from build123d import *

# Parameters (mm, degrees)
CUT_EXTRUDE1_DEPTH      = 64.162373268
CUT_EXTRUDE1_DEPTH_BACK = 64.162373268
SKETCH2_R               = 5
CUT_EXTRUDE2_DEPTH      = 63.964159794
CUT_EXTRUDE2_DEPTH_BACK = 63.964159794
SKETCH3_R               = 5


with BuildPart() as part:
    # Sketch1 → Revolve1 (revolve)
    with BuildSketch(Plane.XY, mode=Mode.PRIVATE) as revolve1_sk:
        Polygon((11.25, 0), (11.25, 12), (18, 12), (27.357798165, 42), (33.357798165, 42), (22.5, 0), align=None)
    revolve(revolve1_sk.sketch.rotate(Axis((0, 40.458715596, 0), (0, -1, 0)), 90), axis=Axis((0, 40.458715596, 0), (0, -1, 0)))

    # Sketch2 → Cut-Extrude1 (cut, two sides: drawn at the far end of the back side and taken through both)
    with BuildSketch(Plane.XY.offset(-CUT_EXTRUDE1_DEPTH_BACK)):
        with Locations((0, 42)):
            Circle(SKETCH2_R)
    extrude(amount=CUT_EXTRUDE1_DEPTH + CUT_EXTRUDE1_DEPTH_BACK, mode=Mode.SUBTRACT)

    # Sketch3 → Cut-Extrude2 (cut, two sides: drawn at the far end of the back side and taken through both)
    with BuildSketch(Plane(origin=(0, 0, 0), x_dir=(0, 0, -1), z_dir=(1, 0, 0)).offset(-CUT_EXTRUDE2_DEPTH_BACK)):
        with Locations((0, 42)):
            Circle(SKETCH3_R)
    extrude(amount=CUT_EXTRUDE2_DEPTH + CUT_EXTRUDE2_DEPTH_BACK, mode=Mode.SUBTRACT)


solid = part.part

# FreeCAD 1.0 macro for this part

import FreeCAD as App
import Part
import Sketcher
from FreeCAD import Vector
Q = App.Units.Quantity

doc = App.newDocument("Part")
params = doc.addObject("Spreadsheet::Sheet", "Params")
for row, (alias, value) in enumerate([
    ("sketch1_width", "6 mm"),
    ("sketch1_height", "12 mm"),
    ("sketch1_width2", "11.25 mm"),
    ("sketch1_width3", "6.75 mm"),
    ("revolution_angle", "360 deg"),
    ("sketch2_diameter", "10 mm"),
    ("sketch3_diameter", "10 mm"),
], start=1):
    params.set(f"A{row}", alias)
    params.set(f"B{row}", "=" + value)
    params.setAlias(f"B{row}", alias)

body = doc.addObject("PartDesign::Body", "Body")

# Sketch on XY plane
sketch1 = body.newObject("Sketcher::SketchObject", "Sketch")
sketch1.AttachmentSupport = (doc.getObject("XY_Plane"), [""])
sketch1.MapMode = "FlatFace"
sketch1.addGeometry(Part.LineSegment(Vector(11, 12, 0), Vector(11, 0, 0)), False)
sketch1.addGeometry(Part.LineSegment(Vector(11, 0, 0), Vector(22, 0, 0)), False)
sketch1.addGeometry(Part.LineSegment(Vector(22, 0, 0), Vector(33, 42, 0)), False)
sketch1.addGeometry(Part.LineSegment(Vector(33, 42, 0), Vector(27, 42, 0)), False)
sketch1.addGeometry(Part.LineSegment(Vector(27, 42, 0), Vector(18, 12, 0)), False)
sketch1.addGeometry(Part.LineSegment(Vector(18, 12, 0), Vector(11, 12, 0)), False)
sketch1.addConstraint(Sketcher.Constraint("Coincident", 0, 2, 1, 1))
sketch1.addConstraint(Sketcher.Constraint("Coincident", 1, 2, 2, 1))
sketch1.addConstraint(Sketcher.Constraint("Coincident", 2, 2, 3, 1))
sketch1.addConstraint(Sketcher.Constraint("Coincident", 3, 2, 4, 1))
sketch1.addConstraint(Sketcher.Constraint("Coincident", 4, 2, 5, 1))
sketch1.addConstraint(Sketcher.Constraint("Coincident", 5, 2, 0, 1))
sketch1.addConstraint(Sketcher.Constraint("Vertical", 0))
sketch1.addConstraint(Sketcher.Constraint("Horizontal", 1))
sketch1.addConstraint(Sketcher.Constraint("Horizontal", 3))
sketch1.addConstraint(Sketcher.Constraint("Horizontal", 5))
sketch1.addConstraint(Sketcher.Constraint("PointOnObject", 0, 2, -1))
sketch1.addConstraint(Sketcher.Constraint("DistanceX", 3, 2, 3, 1, Q("6 mm")))
sketch1.addConstraint(Sketcher.Constraint("DistanceY", 0, 2, 0, 1, Q("12 mm")))
sketch1.addConstraint(Sketcher.Constraint("DistanceY", -1, 1, 2, 2, Q("42 mm")))
sketch1.addConstraint(Sketcher.Constraint("DistanceX", -1, 1, 4, 2, Q("18 mm")))
sketch1.addConstraint(Sketcher.Constraint("DistanceX", 1, 1, 1, 2, Q("11.25 mm")))
sketch1.addConstraint(Sketcher.Constraint("DistanceX", 5, 2, 5, 1, Q("6.75 mm")))
sketch1.addConstraint(Sketcher.Constraint("Distance", 4, Q("31.425601 mm")))
sketch1.setExpression("Constraints[11]", "Params.sketch1_width")
sketch1.setExpression("Constraints[12]", "Params.sketch1_height")
sketch1.setExpression("Constraints[15]", "Params.sketch1_width2")
sketch1.setExpression("Constraints[16]", "Params.sketch1_width3")
revolution = body.newObject("PartDesign::Revolution", "Revolution")
revolution.Profile = sketch1
revolution.ReferenceAxis = (sketch1, ["V_Axis"])
revolution.setExpression("Angle", "Params.revolution_angle")

# Sketch on XY plane
sketch2 = body.newObject("Sketcher::SketchObject", "Sketch001")
sketch2.AttachmentSupport = (doc.getObject("XY_Plane"), [""])
sketch2.MapMode = "FlatFace"
sketch2.addGeometry(Part.Circle(Vector(0, 42, 0), Vector(0, 0, 1), 5), False)
sketch2.addConstraint(Sketcher.Constraint("PointOnObject", 0, 3, -2))
sketch2.addConstraint(Sketcher.Constraint("Diameter", 0, Q("10 mm")))
sketch2.addConstraint(Sketcher.Constraint("DistanceY", -1, 1, 0, 3, Q("42 mm")))
sketch2.setExpression("Constraints[1]", "Params.sketch2_diameter")
pocket1 = body.newObject("PartDesign::Pocket", "Pocket")
pocket1.Profile = sketch2
pocket1.Type = "ThroughAll"
pocket1.Midplane = True

# Sketch on YZ plane
sketch3 = body.newObject("Sketcher::SketchObject", "Sketch002")
sketch3.AttachmentSupport = (doc.getObject("YZ_Plane"), [""])
sketch3.MapMode = "FlatFace"
sketch3.addGeometry(Part.Circle(Vector(42, 0, 0), Vector(0, 0, 1), 5), False)
sketch3.addConstraint(Sketcher.Constraint("PointOnObject", 0, 3, -1))
sketch3.addConstraint(Sketcher.Constraint("Diameter", 0, Q("10 mm")))
sketch3.addConstraint(Sketcher.Constraint("DistanceX", -1, 1, 0, 3, Q("42 mm")))
sketch3.setExpression("Constraints[1]", "Params.sketch3_diameter")
pocket2 = body.newObject("PartDesign::Pocket", "Pocket001")
pocket2.Profile = sketch3
pocket2.Type = "ThroughAll"
pocket2.Midplane = True

doc.recompute()
